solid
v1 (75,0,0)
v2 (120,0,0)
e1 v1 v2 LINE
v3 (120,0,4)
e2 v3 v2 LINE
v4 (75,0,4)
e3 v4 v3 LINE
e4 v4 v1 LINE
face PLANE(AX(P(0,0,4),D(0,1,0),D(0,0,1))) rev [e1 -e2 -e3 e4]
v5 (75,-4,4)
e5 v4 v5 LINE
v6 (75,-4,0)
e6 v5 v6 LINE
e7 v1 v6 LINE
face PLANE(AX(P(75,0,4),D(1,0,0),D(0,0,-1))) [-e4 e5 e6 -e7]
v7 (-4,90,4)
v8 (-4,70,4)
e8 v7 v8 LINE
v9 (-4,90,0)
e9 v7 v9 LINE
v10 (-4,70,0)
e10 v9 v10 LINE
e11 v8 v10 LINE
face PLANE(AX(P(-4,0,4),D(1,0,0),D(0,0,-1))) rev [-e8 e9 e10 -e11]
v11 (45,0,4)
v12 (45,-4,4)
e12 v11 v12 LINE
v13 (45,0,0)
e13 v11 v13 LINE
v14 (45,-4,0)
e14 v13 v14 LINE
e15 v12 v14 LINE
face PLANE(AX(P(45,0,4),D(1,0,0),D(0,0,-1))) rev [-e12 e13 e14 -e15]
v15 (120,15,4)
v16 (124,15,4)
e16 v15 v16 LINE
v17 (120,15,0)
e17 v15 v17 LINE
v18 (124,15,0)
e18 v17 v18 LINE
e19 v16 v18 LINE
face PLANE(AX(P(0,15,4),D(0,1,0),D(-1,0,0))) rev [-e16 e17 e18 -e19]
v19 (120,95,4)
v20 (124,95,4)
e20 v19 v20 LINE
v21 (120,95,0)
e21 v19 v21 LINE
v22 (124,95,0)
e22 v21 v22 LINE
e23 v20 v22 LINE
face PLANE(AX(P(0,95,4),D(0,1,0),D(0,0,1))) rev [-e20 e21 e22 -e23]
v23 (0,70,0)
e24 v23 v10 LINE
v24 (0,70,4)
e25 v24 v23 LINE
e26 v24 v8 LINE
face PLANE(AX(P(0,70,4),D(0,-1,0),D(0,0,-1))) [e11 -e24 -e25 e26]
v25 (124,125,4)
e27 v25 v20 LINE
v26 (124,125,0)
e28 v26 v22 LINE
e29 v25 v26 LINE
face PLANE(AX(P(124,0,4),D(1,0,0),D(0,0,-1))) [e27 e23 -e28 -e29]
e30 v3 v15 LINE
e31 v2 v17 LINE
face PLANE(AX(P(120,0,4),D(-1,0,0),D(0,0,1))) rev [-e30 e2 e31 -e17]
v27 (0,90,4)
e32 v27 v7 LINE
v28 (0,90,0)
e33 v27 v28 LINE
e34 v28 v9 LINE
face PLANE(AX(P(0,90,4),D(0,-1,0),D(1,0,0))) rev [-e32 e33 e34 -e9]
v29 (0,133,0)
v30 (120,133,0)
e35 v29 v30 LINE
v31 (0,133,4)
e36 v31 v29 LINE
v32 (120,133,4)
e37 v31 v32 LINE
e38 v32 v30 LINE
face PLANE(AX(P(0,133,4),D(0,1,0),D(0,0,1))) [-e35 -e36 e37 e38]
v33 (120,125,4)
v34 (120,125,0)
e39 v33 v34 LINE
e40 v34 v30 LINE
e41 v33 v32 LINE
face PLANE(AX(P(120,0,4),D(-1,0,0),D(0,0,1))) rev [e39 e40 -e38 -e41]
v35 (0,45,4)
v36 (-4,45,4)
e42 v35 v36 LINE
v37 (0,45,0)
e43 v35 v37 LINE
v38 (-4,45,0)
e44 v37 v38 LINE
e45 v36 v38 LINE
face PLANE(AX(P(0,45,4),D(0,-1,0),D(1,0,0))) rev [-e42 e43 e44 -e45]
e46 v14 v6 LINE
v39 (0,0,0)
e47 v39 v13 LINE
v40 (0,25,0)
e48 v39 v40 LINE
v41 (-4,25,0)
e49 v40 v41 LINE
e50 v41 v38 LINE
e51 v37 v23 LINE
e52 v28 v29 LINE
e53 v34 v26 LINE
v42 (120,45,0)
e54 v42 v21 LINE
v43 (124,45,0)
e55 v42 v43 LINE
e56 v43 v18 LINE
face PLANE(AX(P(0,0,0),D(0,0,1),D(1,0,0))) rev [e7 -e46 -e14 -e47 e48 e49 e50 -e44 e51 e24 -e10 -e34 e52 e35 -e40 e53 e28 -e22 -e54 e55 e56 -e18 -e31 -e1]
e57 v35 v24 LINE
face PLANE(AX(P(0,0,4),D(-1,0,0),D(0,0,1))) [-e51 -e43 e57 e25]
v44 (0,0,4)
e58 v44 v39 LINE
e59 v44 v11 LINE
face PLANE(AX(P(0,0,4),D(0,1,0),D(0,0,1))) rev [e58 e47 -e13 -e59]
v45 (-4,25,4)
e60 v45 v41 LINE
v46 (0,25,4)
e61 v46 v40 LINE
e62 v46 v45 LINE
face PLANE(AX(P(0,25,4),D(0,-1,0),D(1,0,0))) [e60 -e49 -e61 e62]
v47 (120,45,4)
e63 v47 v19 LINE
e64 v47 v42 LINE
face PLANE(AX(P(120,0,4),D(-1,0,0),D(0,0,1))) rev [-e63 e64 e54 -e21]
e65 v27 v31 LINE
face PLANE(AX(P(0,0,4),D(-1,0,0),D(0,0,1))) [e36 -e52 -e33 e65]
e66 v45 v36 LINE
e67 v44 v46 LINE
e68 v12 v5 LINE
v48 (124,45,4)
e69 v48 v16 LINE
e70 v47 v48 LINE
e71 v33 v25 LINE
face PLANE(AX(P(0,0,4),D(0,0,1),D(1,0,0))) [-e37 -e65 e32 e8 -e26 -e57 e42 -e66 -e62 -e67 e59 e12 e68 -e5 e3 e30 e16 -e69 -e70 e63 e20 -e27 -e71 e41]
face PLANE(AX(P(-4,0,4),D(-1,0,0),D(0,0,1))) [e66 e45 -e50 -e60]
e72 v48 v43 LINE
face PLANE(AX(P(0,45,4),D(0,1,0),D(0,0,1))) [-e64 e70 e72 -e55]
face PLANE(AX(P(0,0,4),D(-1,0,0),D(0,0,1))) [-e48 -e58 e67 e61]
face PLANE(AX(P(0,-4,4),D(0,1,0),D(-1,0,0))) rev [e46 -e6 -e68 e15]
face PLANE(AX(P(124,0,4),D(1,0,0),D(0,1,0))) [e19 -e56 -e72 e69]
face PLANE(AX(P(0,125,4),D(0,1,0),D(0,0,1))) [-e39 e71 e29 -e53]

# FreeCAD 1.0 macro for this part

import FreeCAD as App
import Part
import Sketcher

V = App.Vector
Q = App.Units.Quantity


def add_polygon(sketch, points):
    """Adds a closed chain of lines whose ends are joined by coincident constraints."""
    first, n = sketch.GeometryCount, len(points)
    for a, b in zip(points, points[1:] + points[:1]):
        sketch.addGeometry(Part.LineSegment(App.Vector(*a, 0), App.Vector(*b, 0)), False)
    for i in range(n):
        sketch.addConstraint(Sketcher.Constraint("Coincident", first + i, 2, first + (i + 1) % n, 1))

doc = App.newDocument("Part")
body = doc.addObject("PartDesign::Body", "Body")

# Sketch on XY plane
sketch1 = doc.addObject("Sketcher::SketchObject", "Sketch")
body.addObject(sketch1)
sketch1.AttachmentSupport = (doc.XY_Plane, [""])
sketch1.MapMode = "FlatFace"
add_polygon(sketch1, [(0, 25), (0, 0), (45, 0), (45, -4), (75, -4), (75, 0), (120, 0), (120, 15), (124, 15), (124, 45), (120, 45), (120, 95), (124, 95), (124, 125), (120, 125), (120, 133), (0, 133), (0, 90), (-4, 90), (-4, 70), (0, 70), (0, 45), (-4, 45), (-4, 25)])  # lines 0-23
sketch1.addConstraint([
    Sketcher.Constraint("Vertical", 0),
    Sketcher.Constraint("Horizontal", 1),
    Sketcher.Constraint("Vertical", 2),
    Sketcher.Constraint("Horizontal", 3),
    Sketcher.Constraint("Vertical", 4),
    Sketcher.Constraint("Horizontal", 5),
    Sketcher.Constraint("Vertical", 6),
    Sketcher.Constraint("Horizontal", 7),
    Sketcher.Constraint("Vertical", 8),
    Sketcher.Constraint("Horizontal", 9),
    Sketcher.Constraint("Vertical", 10),
    Sketcher.Constraint("Horizontal", 11),
    Sketcher.Constraint("Vertical", 12),
    Sketcher.Constraint("Horizontal", 13),
    Sketcher.Constraint("Vertical", 14),
    Sketcher.Constraint("Horizontal", 15),
    Sketcher.Constraint("Vertical", 16),
    Sketcher.Constraint("Horizontal", 17),
    Sketcher.Constraint("Vertical", 18),
    Sketcher.Constraint("Horizontal", 19),
    Sketcher.Constraint("Vertical", 20),
    Sketcher.Constraint("Horizontal", 21),
    Sketcher.Constraint("Vertical", 22),
    Sketcher.Constraint("Horizontal", 23),
    Sketcher.Constraint("Coincident", 0, 2, -1, 1),
    Sketcher.Constraint("PointOnObject", 4, 2, -1),
    Sketcher.Constraint("PointOnObject", 15, 2, -2),
    Sketcher.Constraint("PointOnObject", 19, 2, -2),
    Sketcher.Constraint("Horizontal", 9, 2, 20, 2),
    Sketcher.Constraint("Vertical", 6, 2, 9, 2),
    Sketcher.Constraint("Vertical", 8, 2, 11, 2),
    Sketcher.Constraint("Vertical", 10, 2, 13, 2),
    Sketcher.Constraint("Vertical", 18, 2, 21, 2),
    Sketcher.Constraint("Equal", 1, 5),
    Sketcher.Constraint("Equal", 13, 17),
    Sketcher.Constraint("Equal", 23, 2),
    Sketcher.Constraint("Equal", 3, 8),
    Sketcher.Constraint("Equal", 8, 12),
    Sketcher.Constraint("Equal", 0, 20),
    Sketcher.Constraint("Equal", 18, 22),
    Sketcher.Constraint("DistanceX", 1, 1, 1, 2, Q("45 mm")),
    Sketcher.Constraint("DistanceX", 3, 1, 3, 2, Q("30 mm")),
    Sketcher.Constraint("DistanceX", 7, 1, 7, 2, Q("4 mm")),
    Sketcher.Constraint("DistanceY", 0, 2, 0, 1, Q("25 mm")),
    Sketcher.Constraint("DistanceY", 6, 1, 6, 2, Q("15 mm")),
    Sketcher.Constraint("DistanceY", 10, 1, 10, 2, Q("50 mm")),
    Sketcher.Constraint("DistanceY", 14, 1, 14, 2, Q("8 mm")),
])
pad1 = doc.addObject("PartDesign::Pad", "Pad")
body.addObject(pad1)
pad1.Profile = sketch1
pad1.Length = 4

doc.recompute()
